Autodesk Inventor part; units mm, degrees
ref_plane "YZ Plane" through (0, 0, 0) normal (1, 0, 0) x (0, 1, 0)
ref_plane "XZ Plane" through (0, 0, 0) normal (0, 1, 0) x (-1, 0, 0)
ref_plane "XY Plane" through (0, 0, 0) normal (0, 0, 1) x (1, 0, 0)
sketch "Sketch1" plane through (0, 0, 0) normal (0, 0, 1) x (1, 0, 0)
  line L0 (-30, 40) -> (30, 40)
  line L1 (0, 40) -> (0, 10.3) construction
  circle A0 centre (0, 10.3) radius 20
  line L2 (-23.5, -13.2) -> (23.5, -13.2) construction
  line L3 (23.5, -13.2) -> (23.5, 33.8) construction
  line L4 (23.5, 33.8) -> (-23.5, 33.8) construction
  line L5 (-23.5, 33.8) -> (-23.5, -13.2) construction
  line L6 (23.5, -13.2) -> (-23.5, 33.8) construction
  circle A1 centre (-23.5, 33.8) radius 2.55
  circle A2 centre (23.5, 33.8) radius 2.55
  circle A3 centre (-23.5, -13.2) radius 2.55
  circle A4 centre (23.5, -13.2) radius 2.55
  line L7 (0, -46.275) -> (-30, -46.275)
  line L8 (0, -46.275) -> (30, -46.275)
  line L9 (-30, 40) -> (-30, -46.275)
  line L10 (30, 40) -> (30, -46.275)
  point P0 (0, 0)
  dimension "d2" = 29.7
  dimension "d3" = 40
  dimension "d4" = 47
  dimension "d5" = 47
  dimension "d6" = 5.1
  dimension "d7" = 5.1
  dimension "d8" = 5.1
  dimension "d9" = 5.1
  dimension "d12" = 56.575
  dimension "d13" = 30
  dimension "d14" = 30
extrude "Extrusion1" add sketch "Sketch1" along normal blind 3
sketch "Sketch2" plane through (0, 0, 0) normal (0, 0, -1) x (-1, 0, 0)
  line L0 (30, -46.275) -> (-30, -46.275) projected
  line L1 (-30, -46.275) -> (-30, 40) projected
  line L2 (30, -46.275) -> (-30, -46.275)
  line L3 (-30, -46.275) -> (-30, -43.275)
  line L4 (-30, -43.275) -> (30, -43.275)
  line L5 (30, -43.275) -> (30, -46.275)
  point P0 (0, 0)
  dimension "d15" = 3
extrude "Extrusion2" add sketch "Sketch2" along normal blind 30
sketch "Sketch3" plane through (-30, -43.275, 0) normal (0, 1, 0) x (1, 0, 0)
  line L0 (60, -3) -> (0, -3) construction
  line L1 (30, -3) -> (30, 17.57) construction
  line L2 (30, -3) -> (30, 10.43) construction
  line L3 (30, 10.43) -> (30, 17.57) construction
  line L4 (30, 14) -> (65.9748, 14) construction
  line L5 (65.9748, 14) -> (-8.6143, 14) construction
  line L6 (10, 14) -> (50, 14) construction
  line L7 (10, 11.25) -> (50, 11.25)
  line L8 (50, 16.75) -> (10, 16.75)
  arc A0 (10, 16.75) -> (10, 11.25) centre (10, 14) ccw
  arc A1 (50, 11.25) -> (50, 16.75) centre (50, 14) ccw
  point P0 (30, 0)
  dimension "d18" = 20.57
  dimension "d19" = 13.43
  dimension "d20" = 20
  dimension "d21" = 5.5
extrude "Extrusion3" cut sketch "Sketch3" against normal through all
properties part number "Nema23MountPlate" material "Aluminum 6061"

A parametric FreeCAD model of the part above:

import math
import FreeCAD as App
import Part
import Sketcher
from FreeCAD import Vector
Q = App.Units.Quantity

doc = App.newDocument("Part")
body = doc.addObject("PartDesign::Body", "Body")

sketch1 = doc.addObject("Sketcher::SketchObject", "Sketch")
body.addObject(sketch1)
sketch1.AttachmentSupport = (doc.XY_Plane, [""])
sketch1.MapMode = "FlatFace"
sketch1.addGeometry([
    Part.LineSegment(Vector(30, 40, 0), Vector(-30, 40, 0)),
    Part.LineSegment(Vector(-30, 40, 0), Vector(-30, -46.3, 0)),
    Part.LineSegment(Vector(-30, -46.3, 0), Vector(30, -46.3, 0)),
    Part.LineSegment(Vector(30, -46.3, 0), Vector(30, 40, 0)),
    Part.Circle(Vector(-23.5, -13.2, 0), Vector(0, 0, 1), 2.5),
    Part.Circle(Vector(23.5, -13.2, 0), Vector(0, 0, 1), 2.5),
    Part.Circle(Vector(-23.5, 33.8, 0), Vector(0, 0, 1), 2.5),
    Part.Circle(Vector(0, 10.3, 0), Vector(0, 0, 1), 20),
    Part.Circle(Vector(23.5, 33.8, 0), Vector(0, 0, 1), 2.5),
], False)
sketch1.addConstraint([
    Sketcher.Constraint("Coincident", 0, 2, 1, 1),
    Sketcher.Constraint("Coincident", 1, 2, 2, 1),
    Sketcher.Constraint("Coincident", 2, 2, 3, 1),
    Sketcher.Constraint("Coincident", 3, 2, 0, 1),
    Sketcher.Constraint("Horizontal", 0),
    Sketcher.Constraint("Vertical", 1),
    Sketcher.Constraint("Horizontal", 2),
    Sketcher.Constraint("Vertical", 3),
    Sketcher.Constraint("Equal", 4, 5),
    Sketcher.Constraint("Equal", 5, 6),
    Sketcher.Constraint("Equal", 6, 8),
    Sketcher.Constraint("Symmetric", 4, 3, 5, 3, -2),
    Sketcher.Constraint("Symmetric", 6, 3, 8, 3, -2),
    Sketcher.Constraint("PointOnObject", 7, 3, -2),
    Sketcher.Constraint("Vertical", 4, 3, 6, 3),
    Sketcher.Constraint("Diameter", 7, Q("40 mm")),
    Sketcher.Constraint("Diameter", 4, Q("5.1 mm")),
    Sketcher.Constraint("DistanceX", 0, 2, -1, 1, Q("30 mm")),
    Sketcher.Constraint("DistanceY", -1, 1, 0, 2, Q("40 mm")),
    Sketcher.Constraint("DistanceX", -1, 1, 2, 2, Q("30 mm")),
    Sketcher.Constraint("DistanceX", 4, 3, 5, 3, Q("47 mm")),
    Sketcher.Constraint("DistanceY", 4, 3, 6, 3, Q("47 mm")),
    Sketcher.Constraint("DistanceY", 7, 3, 0, 2, Q("29.7 mm")),
    Sketcher.Constraint("DistanceY", 1, 2, 7, 3, Q("56.575 mm")),
    Sketcher.Constraint("DistanceY", 4, 3, -1, 1, Q("13.2 mm")),
])
pad1 = doc.addObject("PartDesign::Pad", "Pad")
body.addObject(pad1)
pad1.Profile = sketch1
pad1.Length = 3

sketch2 = doc.addObject("Sketcher::SketchObject", "Sketch001")
body.addObject(sketch2)
sketch2.AttachmentSupport = (doc.XY_Plane, [""])
sketch2.MapMode = "FlatFace"
sketch2.addGeometry([
    Part.LineSegment(Vector(30, -46.3, 0), Vector(-30, -46.3, 0)),
    Part.LineSegment(Vector(-30, -46.3, 0), Vector(-30, -43.3, 0)),
    Part.LineSegment(Vector(-30, -43.3, 0), Vector(30, -43.3, 0)),
    Part.LineSegment(Vector(30, -43.3, 0), Vector(30, -46.3, 0)),
], False)
sketch2.addConstraint([
    Sketcher.Constraint("Coincident", 0, 2, 1, 1),
    Sketcher.Constraint("Coincident", 1, 2, 2, 1),
    Sketcher.Constraint("Coincident", 2, 2, 3, 1),
    Sketcher.Constraint("Coincident", 3, 2, 0, 1),
    Sketcher.Constraint("Horizontal", 0),
    Sketcher.Constraint("Vertical", 1),
    Sketcher.Constraint("Horizontal", 2),
    Sketcher.Constraint("Vertical", 3),
    Sketcher.Constraint("DistanceY", 1, 1, 1, 2, Q("3 mm")),
    Sketcher.Constraint("DistanceX", 0, 2, 0, 1, Q("60 mm")),
    Sketcher.Constraint("DistanceX", 0, 2, -1, 1, Q("30 mm")),
    Sketcher.Constraint("DistanceY", 0, 2, -1, 1, Q("46.275 mm")),
])
pad2 = doc.addObject("PartDesign::Pad", "Pad001")
body.addObject(pad2)
pad2.Profile = sketch2
pad2.Length = 30
pad2.Reversed = True

sketch3 = doc.addObject("Sketcher::SketchObject", "Sketch002")
body.addObject(sketch3)
sketch3.AttachmentSupport = (doc.XZ_Plane, [""])
sketch3.MapMode = "FlatFace"
sketch3.AttachmentOffset = App.Placement(Vector(0, 0, 43.275), App.Rotation())
sketch3.addGeometry([
    Part.ArcOfCircle(Part.Circle(Vector(-20, -14, 0), Vector(0, 0, 1), 2.8), math.radians(90), math.radians(270)),
    Part.LineSegment(Vector(-20, -11.2, 0), Vector(20, -11.2, 0)),
    Part.ArcOfCircle(Part.Circle(Vector(20, -14, 0), Vector(0, 0, 1), 2.8), math.radians(-90), math.radians(90)),
    Part.LineSegment(Vector(20, -16.8, 0), Vector(-20, -16.8, 0)),
], False)
sketch3.addConstraint([
    Sketcher.Constraint("Tangent", 0, 1, 1, 1),
    Sketcher.Constraint("Tangent", 1, 2, 2, 2),
    Sketcher.Constraint("Tangent", 2, 1, 3, 1),
    Sketcher.Constraint("Tangent", 3, 2, 0, 2),
    Sketcher.Constraint("Horizontal", 1),
    Sketcher.Constraint("Horizontal", 3),
    Sketcher.Constraint("Radius", 0, Q("2.75 mm")),
    Sketcher.Constraint("DistanceX", 0, 3, -1, 1, Q("20 mm")),
    Sketcher.Constraint("DistanceX", -1, 1, 2, 3, Q("20 mm")),
    Sketcher.Constraint("DistanceY", 0, 3, -1, 1, Q("14 mm")),
])
pocket1 = doc.addObject("PartDesign::Pocket", "Pocket")
body.addObject(pocket1)
pocket1.Profile = sketch3
pocket1.Type = "ThroughAll"
pocket1.Reversed = True

doc.recompute()
